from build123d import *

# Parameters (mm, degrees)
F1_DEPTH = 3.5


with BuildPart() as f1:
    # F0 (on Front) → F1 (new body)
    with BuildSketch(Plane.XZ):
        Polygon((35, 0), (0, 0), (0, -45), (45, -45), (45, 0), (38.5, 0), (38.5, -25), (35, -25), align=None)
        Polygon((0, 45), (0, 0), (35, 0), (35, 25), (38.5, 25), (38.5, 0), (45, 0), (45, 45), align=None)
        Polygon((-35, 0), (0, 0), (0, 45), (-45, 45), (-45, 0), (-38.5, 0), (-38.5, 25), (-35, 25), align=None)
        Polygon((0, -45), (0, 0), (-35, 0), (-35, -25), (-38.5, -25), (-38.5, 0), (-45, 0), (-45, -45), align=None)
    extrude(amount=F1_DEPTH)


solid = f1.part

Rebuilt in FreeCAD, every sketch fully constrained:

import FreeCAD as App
import Part
import Sketcher
from FreeCAD import Vector

doc = App.newDocument("Part")
body = doc.addObject("PartDesign::Body", "Body")

sketch1 = doc.addObject("Sketcher::SketchObject", "Sketch")
body.addObject(sketch1)
sketch1.AttachmentSupport = (doc.XZ_Plane, [""])
sketch1.MapMode = "FlatFace"
sketch1.addGeometry([
    Part.LineSegment(Vector(45, -45, 0), Vector(45, 45, 0)),
    Part.LineSegment(Vector(45, 45, 0), Vector(-45, 45, 0)),
    Part.LineSegment(Vector(-45, 45, 0), Vector(-45, -45, 0)),
    Part.LineSegment(Vector(-45, -45, 0), Vector(45, -45, 0)),
    Part.LineSegment(Vector(-38.5, 25, 0), Vector(-35, 25, 0)),
    Part.LineSegment(Vector(-35, 25, 0), Vector(-35, -25, 0)),
    Part.LineSegment(Vector(-35, -25, 0), Vector(-38.5, -25, 0)),
    Part.LineSegment(Vector(-38.5, -25, 0), Vector(-38.5, 25, 0)),
    Part.LineSegment(Vector(38.5, -25, 0), Vector(35, -25, 0)),
    Part.LineSegment(Vector(35, -25, 0), Vector(35, 25, 0)),
    Part.LineSegment(Vector(35, 25, 0), Vector(38.5, 25, 0)),
    Part.LineSegment(Vector(38.5, 25, 0), Vector(38.5, -25, 0)),
], False)
sketch1.addConstraint([
    Sketcher.Constraint("Coincident", 0, 2, 1, 1),
    Sketcher.Constraint("Coincident", 1, 2, 2, 1),
    Sketcher.Constraint("Coincident", 2, 2, 3, 1),
    Sketcher.Constraint("Coincident", 3, 2, 0, 1),
    Sketcher.Constraint("Coincident", 4, 2, 5, 1),
    Sketcher.Constraint("Coincident", 5, 2, 6, 1),
    Sketcher.Constraint("Coincident", 6, 2, 7, 1),
    Sketcher.Constraint("Coincident", 7, 2, 4, 1),
    Sketcher.Constraint("Coincident", 8, 2, 9, 1),
    Sketcher.Constraint("Coincident", 9, 2, 10, 1),
    Sketcher.Constraint("Coincident", 10, 2, 11, 1),
    Sketcher.Constraint("Coincident", 11, 2, 8, 1),
    Sketcher.Constraint("Vertical", 0),
    Sketcher.Constraint("Horizontal", 1),
    Sketcher.Constraint("Vertical", 2),
    Sketcher.Constraint("Horizontal", 3),
    Sketcher.Constraint("Horizontal", 4),
    Sketcher.Constraint("Vertical", 5),
    Sketcher.Constraint("Horizontal", 6),
    Sketcher.Constraint("Vertical", 7),
    Sketcher.Constraint("Horizontal", 8),
    Sketcher.Constraint("Vertical", 9),
    Sketcher.Constraint("Horizontal", 10),
    Sketcher.Constraint("Vertical", 11),
    Sketcher.Constraint("Symmetric", 0, 2, 2, 2, -1, 1),
    Sketcher.Constraint("Symmetric", 4, 2, 8, 2, -1, 1),
    Sketcher.Constraint("Symmetric", 6, 2, 10, 2, -1, 1),
    Sketcher.Constraint("Horizontal", 6, 2, 8, 2),
    Sketcher.Constraint("Equal", 3, 0),
    Sketcher.Constraint("DistanceX", 1, 2, 1, 1, 90.0),
    Sketcher.Constraint("DistanceY", 5, 2, 5, 1, 50.0),
    Sketcher.Constraint("DistanceX", 4, 1, 4, 2, 3.5),
    Sketcher.Constraint("DistanceX", 4, 2, -1, 1, 35.0),
])
pad1 = doc.addObject("PartDesign::Pad", "Pad")
body.addObject(pad1)
pad1.Profile = sketch1
pad1.Length = 3.5

doc.recompute()
